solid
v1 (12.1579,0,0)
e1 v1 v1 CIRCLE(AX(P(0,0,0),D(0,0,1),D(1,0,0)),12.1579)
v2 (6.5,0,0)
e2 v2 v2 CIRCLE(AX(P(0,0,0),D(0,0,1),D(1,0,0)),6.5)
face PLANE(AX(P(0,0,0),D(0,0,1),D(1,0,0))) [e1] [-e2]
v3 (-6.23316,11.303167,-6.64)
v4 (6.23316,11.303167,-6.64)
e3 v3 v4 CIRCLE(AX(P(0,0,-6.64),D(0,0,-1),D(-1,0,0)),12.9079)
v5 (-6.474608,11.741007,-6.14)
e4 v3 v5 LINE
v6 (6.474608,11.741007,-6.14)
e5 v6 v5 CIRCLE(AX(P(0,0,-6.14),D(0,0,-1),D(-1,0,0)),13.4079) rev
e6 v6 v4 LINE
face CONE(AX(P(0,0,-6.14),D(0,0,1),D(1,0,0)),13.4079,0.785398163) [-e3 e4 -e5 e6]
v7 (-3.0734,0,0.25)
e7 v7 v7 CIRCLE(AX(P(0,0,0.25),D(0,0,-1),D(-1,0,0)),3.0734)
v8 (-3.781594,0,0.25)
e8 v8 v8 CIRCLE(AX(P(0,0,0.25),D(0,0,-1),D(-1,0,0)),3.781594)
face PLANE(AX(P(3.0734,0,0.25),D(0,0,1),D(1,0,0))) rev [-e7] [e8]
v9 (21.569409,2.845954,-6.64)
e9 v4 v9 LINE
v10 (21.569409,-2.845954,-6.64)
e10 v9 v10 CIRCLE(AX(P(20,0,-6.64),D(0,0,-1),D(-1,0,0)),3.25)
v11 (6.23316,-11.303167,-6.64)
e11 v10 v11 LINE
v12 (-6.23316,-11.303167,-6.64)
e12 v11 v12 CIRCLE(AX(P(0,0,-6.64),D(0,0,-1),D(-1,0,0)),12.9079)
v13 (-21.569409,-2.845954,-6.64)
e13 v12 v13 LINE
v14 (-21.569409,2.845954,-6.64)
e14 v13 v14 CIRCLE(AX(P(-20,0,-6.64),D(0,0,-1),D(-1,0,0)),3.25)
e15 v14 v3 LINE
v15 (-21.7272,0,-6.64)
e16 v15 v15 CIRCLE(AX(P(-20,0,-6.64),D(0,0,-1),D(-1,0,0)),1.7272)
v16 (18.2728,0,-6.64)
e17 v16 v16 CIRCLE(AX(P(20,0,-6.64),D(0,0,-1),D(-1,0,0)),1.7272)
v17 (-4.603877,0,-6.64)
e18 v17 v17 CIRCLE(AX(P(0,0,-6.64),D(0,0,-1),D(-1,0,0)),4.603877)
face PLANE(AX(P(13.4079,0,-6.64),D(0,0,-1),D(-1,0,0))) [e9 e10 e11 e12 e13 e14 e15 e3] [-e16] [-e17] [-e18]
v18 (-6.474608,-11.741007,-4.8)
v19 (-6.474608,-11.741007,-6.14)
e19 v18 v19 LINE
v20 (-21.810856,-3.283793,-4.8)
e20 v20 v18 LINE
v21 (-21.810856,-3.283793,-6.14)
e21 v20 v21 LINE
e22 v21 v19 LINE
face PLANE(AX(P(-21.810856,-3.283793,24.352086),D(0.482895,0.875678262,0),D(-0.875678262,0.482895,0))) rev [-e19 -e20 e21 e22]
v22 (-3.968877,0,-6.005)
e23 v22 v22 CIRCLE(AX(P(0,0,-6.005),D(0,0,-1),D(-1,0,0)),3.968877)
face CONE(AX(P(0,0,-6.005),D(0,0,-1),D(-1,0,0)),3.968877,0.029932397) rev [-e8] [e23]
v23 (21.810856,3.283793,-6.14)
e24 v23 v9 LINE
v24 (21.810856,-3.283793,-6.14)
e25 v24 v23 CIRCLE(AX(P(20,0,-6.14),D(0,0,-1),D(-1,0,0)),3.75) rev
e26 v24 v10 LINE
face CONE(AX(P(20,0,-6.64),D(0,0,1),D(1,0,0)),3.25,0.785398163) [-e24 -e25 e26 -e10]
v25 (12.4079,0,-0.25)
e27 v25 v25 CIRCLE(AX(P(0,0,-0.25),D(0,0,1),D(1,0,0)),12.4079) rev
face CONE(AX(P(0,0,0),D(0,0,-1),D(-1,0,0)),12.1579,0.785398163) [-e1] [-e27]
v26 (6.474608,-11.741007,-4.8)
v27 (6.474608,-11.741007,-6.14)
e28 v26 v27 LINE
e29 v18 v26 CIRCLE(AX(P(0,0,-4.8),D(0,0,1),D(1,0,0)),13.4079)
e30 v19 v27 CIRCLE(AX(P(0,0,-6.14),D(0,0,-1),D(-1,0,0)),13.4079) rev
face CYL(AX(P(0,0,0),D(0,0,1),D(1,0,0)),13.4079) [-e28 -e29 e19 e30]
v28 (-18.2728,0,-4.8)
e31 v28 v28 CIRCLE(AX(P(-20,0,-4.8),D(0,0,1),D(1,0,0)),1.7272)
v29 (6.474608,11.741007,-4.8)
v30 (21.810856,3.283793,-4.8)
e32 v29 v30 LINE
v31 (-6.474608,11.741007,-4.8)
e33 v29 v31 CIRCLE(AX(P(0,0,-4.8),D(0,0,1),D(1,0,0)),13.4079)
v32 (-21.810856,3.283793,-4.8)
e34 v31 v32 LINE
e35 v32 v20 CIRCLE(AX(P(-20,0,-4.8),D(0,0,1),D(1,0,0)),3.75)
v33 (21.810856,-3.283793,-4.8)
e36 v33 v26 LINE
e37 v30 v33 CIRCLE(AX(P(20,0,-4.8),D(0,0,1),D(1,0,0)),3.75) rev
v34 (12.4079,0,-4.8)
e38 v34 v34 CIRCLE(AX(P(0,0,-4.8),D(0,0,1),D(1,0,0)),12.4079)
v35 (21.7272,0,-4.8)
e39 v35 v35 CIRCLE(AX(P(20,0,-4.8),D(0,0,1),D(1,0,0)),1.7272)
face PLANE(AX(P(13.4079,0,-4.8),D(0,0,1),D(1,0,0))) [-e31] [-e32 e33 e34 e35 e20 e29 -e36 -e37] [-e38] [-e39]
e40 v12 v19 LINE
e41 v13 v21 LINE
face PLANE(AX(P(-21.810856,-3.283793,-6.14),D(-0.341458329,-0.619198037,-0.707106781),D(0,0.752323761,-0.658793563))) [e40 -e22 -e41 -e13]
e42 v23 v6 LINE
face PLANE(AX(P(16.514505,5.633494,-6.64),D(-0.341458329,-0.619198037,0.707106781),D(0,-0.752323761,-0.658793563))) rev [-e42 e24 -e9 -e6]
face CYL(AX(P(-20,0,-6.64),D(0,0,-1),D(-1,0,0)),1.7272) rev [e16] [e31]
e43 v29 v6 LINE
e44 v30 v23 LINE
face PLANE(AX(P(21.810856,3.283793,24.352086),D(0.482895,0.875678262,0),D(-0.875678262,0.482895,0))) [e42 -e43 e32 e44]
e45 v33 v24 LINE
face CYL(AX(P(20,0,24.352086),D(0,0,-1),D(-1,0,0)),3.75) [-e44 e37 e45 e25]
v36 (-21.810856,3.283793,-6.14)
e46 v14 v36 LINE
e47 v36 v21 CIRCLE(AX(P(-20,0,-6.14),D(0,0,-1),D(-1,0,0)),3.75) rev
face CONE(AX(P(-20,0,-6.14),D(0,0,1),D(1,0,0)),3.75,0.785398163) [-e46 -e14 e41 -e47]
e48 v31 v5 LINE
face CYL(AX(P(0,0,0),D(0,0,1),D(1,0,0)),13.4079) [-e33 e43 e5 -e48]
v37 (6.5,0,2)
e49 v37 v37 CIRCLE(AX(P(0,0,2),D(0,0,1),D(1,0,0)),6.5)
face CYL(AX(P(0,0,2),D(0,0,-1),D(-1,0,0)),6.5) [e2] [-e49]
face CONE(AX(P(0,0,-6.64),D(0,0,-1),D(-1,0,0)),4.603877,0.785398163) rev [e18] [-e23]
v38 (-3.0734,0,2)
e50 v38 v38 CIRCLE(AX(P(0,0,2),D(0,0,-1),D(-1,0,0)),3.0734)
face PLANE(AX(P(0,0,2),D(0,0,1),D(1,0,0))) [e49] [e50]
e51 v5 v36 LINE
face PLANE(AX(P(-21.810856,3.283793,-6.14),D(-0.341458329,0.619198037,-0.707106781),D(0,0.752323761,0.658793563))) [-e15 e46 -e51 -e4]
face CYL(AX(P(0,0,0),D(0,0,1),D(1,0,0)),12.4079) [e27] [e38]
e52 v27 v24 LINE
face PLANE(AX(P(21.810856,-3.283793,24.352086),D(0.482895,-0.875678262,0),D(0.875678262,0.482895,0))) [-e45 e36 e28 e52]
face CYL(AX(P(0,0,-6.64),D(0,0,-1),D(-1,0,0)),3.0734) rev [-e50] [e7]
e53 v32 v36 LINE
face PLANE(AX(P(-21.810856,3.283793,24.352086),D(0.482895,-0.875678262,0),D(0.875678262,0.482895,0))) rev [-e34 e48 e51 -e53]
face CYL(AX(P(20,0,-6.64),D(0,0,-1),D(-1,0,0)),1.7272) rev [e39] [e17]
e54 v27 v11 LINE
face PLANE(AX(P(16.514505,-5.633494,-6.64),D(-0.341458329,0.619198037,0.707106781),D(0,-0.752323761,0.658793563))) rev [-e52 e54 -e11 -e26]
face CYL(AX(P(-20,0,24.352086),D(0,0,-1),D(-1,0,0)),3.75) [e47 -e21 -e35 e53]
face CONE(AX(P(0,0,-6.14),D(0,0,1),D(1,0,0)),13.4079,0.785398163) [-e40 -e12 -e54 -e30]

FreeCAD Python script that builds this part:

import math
import FreeCAD as App
import Part
import Sketcher
Q = App.Units.Quantity


def edges_at(feature, points):
    """Names of the edges that pass closest to the given points."""
    edges = feature.Shape.Edges
    near = lambda p: min(range(len(edges)), key=lambda i: edges[i].distToShape(Part.Vertex(*p))[0])
    return sorted({f"Edge{near(p) + 1}" for p in points})


def add_polygon(sketch, points):
    """Adds a closed chain of lines whose ends are joined by coincident constraints."""
    first, n = sketch.GeometryCount, len(points)
    for a, b in zip(points, points[1:] + points[:1]):
        sketch.addGeometry(Part.LineSegment(App.Vector(*a, 0), App.Vector(*b, 0)), False)
    for i in range(n):
        sketch.addConstraint(Sketcher.Constraint("Coincident", first + i, 2, first + (i + 1) % n, 1))

doc = App.newDocument("Part")
params = doc.addObject("Spreadsheet::Sheet", "Params")
for row, (alias, value) in enumerate([
    ("sketch1_width", "1 mm"),
    ("sketch1_height", "4.8 mm"),
    ("sketch1_height2", "1.84 mm"),
    ("revolution_angle", "360 deg"),
    ("sketch2_diameter", "13 mm"),
    ("pad1_length", "2 mm"),
    ("sketch3_radius", "3.75 mm"),
    ("pad2_length", "1.84 mm"),
    ("sketch4_height", "15 mm"),
    ("groove_angle", "360 deg"),
    ("sketch5_height", "8.64 mm"),
    ("sketch5_height2", "1.75 mm"),
    ("groove2_angle", "360 deg"),
    ("chamfer_size", "0.25 mm"),
    ("chamfer2_size", "0.5 mm"),
], start=1):
    params.set(f"A{row}", alias)
    params.set(f"B{row}", "=" + value)
    params.setAlias(f"B{row}", alias)

body = doc.addObject("PartDesign::Body", "Body")

sketch1 = body.newObject("Sketcher::SketchObject", "Sketch")
sketch1.AttachmentSupport = (doc.getObject("XZ_Plane"), [""])
sketch1.MapMode = "FlatFace"
add_polygon(sketch1, [(0, 0), (12.4, 0), (12.4, -4.8), (13.4, -4.8), (13.4, -6.6), (0, -6.6)])
sketch1.addConstraint(Sketcher.Constraint("Horizontal", 0))
sketch1.addConstraint(Sketcher.Constraint("Vertical", 1))
sketch1.addConstraint(Sketcher.Constraint("Horizontal", 2))
sketch1.addConstraint(Sketcher.Constraint("Vertical", 3))
sketch1.addConstraint(Sketcher.Constraint("Horizontal", 4))
sketch1.addConstraint(Sketcher.Constraint("Vertical", 5))
sketch1.addConstraint(Sketcher.Constraint("Coincident", 5, 2, -1, 1))
sketch1.addConstraint(Sketcher.Constraint("DistanceX", 2, 1, 2, 2, 1.0))
sketch1.addConstraint(Sketcher.Constraint("DistanceY", 1, 2, 1, 1, 4.8))
sketch1.addConstraint(Sketcher.Constraint("DistanceY", 3, 2, 3, 1, 1.84))
sketch1.addConstraint(Sketcher.Constraint("DistanceX", 0, 1, 0, 2, 12.4079))
sketch1.setExpression("Constraints[13]", "Params.sketch1_width")
sketch1.setExpression("Constraints[14]", "Params.sketch1_height")
sketch1.setExpression("Constraints[15]", "Params.sketch1_height2")
revolution = body.newObject("PartDesign::Revolution", "Revolution")
revolution.Profile = sketch1
revolution.ReferenceAxis = (sketch1, ["V_Axis"])
revolution.setExpression("Angle", "Params.revolution_angle")

sketch2 = body.newObject("Sketcher::SketchObject", "Sketch001")
sketch2.AttachmentSupport = (doc.getObject("XY_Plane"), [""])
sketch2.MapMode = "FlatFace"
sketch2.addGeometry(Part.Circle(App.Vector(0, 0, 0), App.Vector(0, 0, 1), 6), False)
sketch2.addConstraint(Sketcher.Constraint("Coincident", 0, 3, -1, 1))
sketch2.addConstraint(Sketcher.Constraint("Diameter", 0, 13.0))
sketch2.setExpression("Constraints[1]", "Params.sketch2_diameter")
pad1 = body.newObject("PartDesign::Pad", "Pad")
pad1.Profile = sketch2
pad1.setExpression("Length", "Params.pad1_length")

sketch3 = body.newObject("Sketcher::SketchObject", "Sketch002")
sketch3.AttachmentSupport = (doc.getObject("XY_Plane"), [""])
sketch3.MapMode = "FlatFace"
sketch3.AttachmentOffset = App.Placement(App.Vector(0, 0, -6.64), App.Rotation())
sketch3.addGeometry(Part.LineSegment(App.Vector(21.8, -3.3, 0), App.Vector(6.5, -11.7, 0)), False)
sketch3.addGeometry(Part.ArcOfCircle(Part.Circle(App.Vector(0, 0, 0), App.Vector(0, 0, 1), 13.4), math.radians(-61), math.radians(61)), False)
sketch3.addGeometry(Part.LineSegment(App.Vector(6.5, 11.7, 0), App.Vector(21.8, 3.3, 0)), False)
sketch3.addGeometry(Part.ArcOfCircle(Part.Circle(App.Vector(20, 0, 0), App.Vector(0, 0, 1), 3.7), math.radians(-61), math.radians(61)), False)
sketch3.addConstraint(Sketcher.Constraint("Tangent", 0, 2, 1, 1))
sketch3.addConstraint(Sketcher.Constraint("Tangent", 1, 2, 2, 1))
sketch3.addConstraint(Sketcher.Constraint("Tangent", 2, 2, 3, 2))
sketch3.addConstraint(Sketcher.Constraint("Tangent", 3, 1, 0, 1))
sketch3.addConstraint(Sketcher.Constraint("Coincident", 1, 3, -1, 1))
sketch3.addConstraint(Sketcher.Constraint("PointOnObject", 3, 3, -1))
sketch3.addConstraint(Sketcher.Constraint("Radius", 3, 3.75))
sketch3.addConstraint(Sketcher.Constraint("DistanceX", -1, 1, 3, 3, 20.0))
sketch3.addConstraint(Sketcher.Constraint("Radius", 1, 13.4079))
sketch3.setExpression("Constraints[6]", "Params.sketch3_radius")
pad2 = body.newObject("PartDesign::Pad", "Pad001")
pad2.Profile = sketch3
pad2.setExpression("Length", "Params.pad2_length")

sketch4 = body.newObject("Sketcher::SketchObject", "Sketch003")
sketch4.AttachmentSupport = (doc.getObject("YZ_Plane"), [""])
sketch4.MapMode = "FlatFace"
sketch4.AttachmentOffset = App.Placement(App.Vector(0, 0, 20), App.Rotation())
add_polygon(sketch4, [(0, 9.4), (0, -6.6), (1.7, -6.6), (1.7, 8.4)])
sketch4.addConstraint(Sketcher.Constraint("Vertical", 0))
sketch4.addConstraint(Sketcher.Constraint("Horizontal", 1))
sketch4.addConstraint(Sketcher.Constraint("Vertical", 2))
sketch4.addConstraint(Sketcher.Constraint("PointOnObject", 0, 2, -2))
sketch4.addConstraint(Sketcher.Constraint("DistanceY", 2, 1, 2, 2, 15.0))
sketch4.addConstraint(Sketcher.Constraint("Angle", 3, Q("149 deg")))
sketch4.addConstraint(Sketcher.Constraint("DistanceY", 0, 2, -1, 1, 6.64))
sketch4.addConstraint(Sketcher.Constraint("DistanceX", 1, 1, 1, 2, 1.7272))
sketch4.setExpression("Constraints[8]", "Params.sketch4_height")
groove = body.newObject("PartDesign::Groove", "Groove")
groove.Profile = sketch4
groove.ReferenceAxis = (sketch4, ["V_Axis"])
groove.setExpression("Angle", "Params.groove_angle")
doc.recompute()

mirrored = body.newObject("PartDesign::Mirrored", "Mirrored")
mirrored.Originals = [pad2, groove]
mirrored.MirrorPlane = (doc.getObject("YZ_Plane"), [""])
body.Tip = mirrored

sketch5 = body.newObject("Sketcher::SketchObject", "Sketch004")
sketch5.AttachmentSupport = (doc.getObject("YZ_Plane"), [""])
sketch5.MapMode = "FlatFace"
add_polygon(sketch5, [(0, 2), (0, -6.6), (4.6, -6.6), (4, -6), (3.8, 0.2), (3.1, 0.2), (3.1, 2)])
sketch5.addConstraint(Sketcher.Constraint("Vertical", 0))
sketch5.addConstraint(Sketcher.Constraint("Horizontal", 1))
sketch5.addConstraint(Sketcher.Constraint("Horizontal", 4))
sketch5.addConstraint(Sketcher.Constraint("Vertical", 5))
sketch5.addConstraint(Sketcher.Constraint("Horizontal", 6))
sketch5.addConstraint(Sketcher.Constraint("PointOnObject", 0, 2, -2))
sketch5.addConstraint(Sketcher.Constraint("Angle", 2, Q("135 deg")))
sketch5.addConstraint(Sketcher.Constraint("DistanceY", -1, 1, 5, 2, 2.0))
sketch5.addConstraint(Sketcher.Constraint("DistanceY", 0, 2, 0, 1, 8.64))
sketch5.addConstraint(Sketcher.Constraint("DistanceY", 5, 1, 5, 2, 1.75))
sketch5.addConstraint(Sketcher.Constraint("DistanceX", 6, 2, 6, 1, 3.0734))
sketch5.addConstraint(Sketcher.Constraint("DistanceY", 2, 2, -1, 1, 6.005))
sketch5.addConstraint(Sketcher.Constraint("DistanceX", 1, 1, 1, 2, 4.603877))
sketch5.addConstraint(Sketcher.Constraint("DistanceX", 4, 2, 4, 1, 0.708194))
sketch5.setExpression("Constraints[15]", "Params.sketch5_height")
sketch5.setExpression("Constraints[16]", "Params.sketch5_height2")
groove2 = body.newObject("PartDesign::Groove", "Groove001")
groove2.Profile = sketch5
groove2.ReferenceAxis = (sketch5, ["V_Axis"])
groove2.setExpression("Angle", "Params.groove2_angle")
doc.recompute()

chamfer = body.newObject("PartDesign::Chamfer", "Chamfer")
chamfer.Base = (groove2, edges_at(groove2, [(-12.408, 0, 0)]))
chamfer.setExpression("Size", "Params.chamfer_size")
doc.recompute()

chamfer2 = body.newObject("PartDesign::Chamfer", "Chamfer001")
chamfer2.Base = (chamfer, edges_at(chamfer, [
    (23.75, 0, -6.64),
    (14.143, -7.512, -6.64),
    (14.143, 7.512, -6.64),
    (0, -13.408, -6.64),
    (-23.75, 0, -6.64),
    (-14.143, -7.512, -6.64),
    (-14.143, 7.512, -6.64),
    (0, 13.408, -6.64),
]))
chamfer2.setExpression("Size", "Params.chamfer2_size")

doc.recompute()
